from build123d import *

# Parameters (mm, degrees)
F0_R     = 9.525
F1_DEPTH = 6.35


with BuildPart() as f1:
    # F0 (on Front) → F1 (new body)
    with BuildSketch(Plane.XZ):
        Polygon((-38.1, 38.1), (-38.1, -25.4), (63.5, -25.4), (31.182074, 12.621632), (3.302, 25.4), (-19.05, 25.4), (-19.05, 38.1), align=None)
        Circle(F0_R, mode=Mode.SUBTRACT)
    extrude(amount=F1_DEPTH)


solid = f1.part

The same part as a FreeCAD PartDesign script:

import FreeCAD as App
import Part
import Sketcher
Q = App.Units.Quantity

doc = App.newDocument("Part")
body = doc.addObject("PartDesign::Body", "Body")

sketch1 = body.newObject("Sketcher::SketchObject", "Sketch")
sketch1.AttachmentSupport = (doc.getObject("XZ_Plane"), [""])
sketch1.MapMode = "FlatFace"
sketch1.addGeometry([
    Part.LineSegment(App.Vector(-38.1, 38.1, 0), App.Vector(-38.1, -25.4, 0)),
    Part.LineSegment(App.Vector(-38.1, -25.4, 0), App.Vector(63.5, -25.4, 0)),
    Part.LineSegment(App.Vector(63.5, -25.4, 0), App.Vector(31.182074, 12.621632, 0)),
    Part.LineSegment(App.Vector(31.182074, 12.621632, 0), App.Vector(3.302, 25.4, 0)),
    Part.LineSegment(App.Vector(3.302, 25.4, 0), App.Vector(-19.05, 25.4, 0)),
    Part.LineSegment(App.Vector(-19.05, 25.4, 0), App.Vector(-19.05, 38.1, 0)),
    Part.LineSegment(App.Vector(-19.05, 38.1, 0), App.Vector(-38.1, 38.1, 0)),
    Part.Circle(App.Vector(0, 0, 0), App.Vector(0, 0, 1), 9.525),
], False)
sketch1.addConstraint([
    Sketcher.Constraint("Coincident", 0, 2, 1, 1),
    Sketcher.Constraint("Coincident", 1, 2, 2, 1),
    Sketcher.Constraint("Coincident", 2, 2, 3, 1),
    Sketcher.Constraint("Coincident", 3, 2, 4, 1),
    Sketcher.Constraint("Coincident", 4, 2, 5, 1),
    Sketcher.Constraint("Coincident", 5, 2, 6, 1),
    Sketcher.Constraint("Coincident", 6, 2, 0, 1),
    Sketcher.Constraint("Vertical", 0),
    Sketcher.Constraint("Horizontal", 1),
    Sketcher.Constraint("Horizontal", 4),
    Sketcher.Constraint("Vertical", 5),
    Sketcher.Constraint("Horizontal", 6),
    Sketcher.Constraint("Coincident", 7, 3, -1, 1),
    Sketcher.Constraint("Diameter", 7, Q("0.75 in")),
    Sketcher.Constraint("DistanceX", 1, 1, 1, 2, Q("4 in")),
    Sketcher.Constraint("DistanceY", 0, 2, 0, 1, Q("2.5 in")),
    Sketcher.Constraint("DistanceY", 5, 1, 5, 2, Q("0.5 in")),
    Sketcher.Constraint("DistanceY", 0, 2, -1, 1, Q("1 in")),
    Sketcher.Constraint("DistanceX", 4, 2, 4, 1, Q("0.88 in")),
    Sketcher.Constraint("DistanceX", 6, 2, 6, 1, Q("0.75 in")),
    Sketcher.Constraint("DistanceX", 0, 2, -1, 1, Q("1.5 in")),
    Sketcher.Constraint("Distance", 2, 49.90083),
    Sketcher.Constraint("Distance", 3, 30.668962),
])
pad1 = body.newObject("PartDesign::Pad", "Pad")
pad1.Profile = sketch1
pad1.Length = Q("0.25 in")

doc.recompute()
